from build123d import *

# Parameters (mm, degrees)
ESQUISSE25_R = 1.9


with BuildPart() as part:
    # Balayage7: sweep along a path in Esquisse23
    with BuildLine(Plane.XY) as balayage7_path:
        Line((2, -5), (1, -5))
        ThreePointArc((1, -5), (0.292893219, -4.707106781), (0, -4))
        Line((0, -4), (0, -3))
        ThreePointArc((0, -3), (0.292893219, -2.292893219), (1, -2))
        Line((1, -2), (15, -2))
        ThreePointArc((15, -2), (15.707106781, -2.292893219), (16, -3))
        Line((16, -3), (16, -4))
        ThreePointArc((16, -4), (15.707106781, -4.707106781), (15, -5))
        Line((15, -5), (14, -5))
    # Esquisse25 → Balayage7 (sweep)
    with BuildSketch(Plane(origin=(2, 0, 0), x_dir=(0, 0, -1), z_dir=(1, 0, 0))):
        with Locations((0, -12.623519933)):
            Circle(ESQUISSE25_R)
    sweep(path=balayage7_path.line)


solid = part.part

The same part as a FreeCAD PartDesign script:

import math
import FreeCAD as App
import Part
import Sketcher

V = App.Vector

doc = App.newDocument("Part")
params = doc.addObject("Spreadsheet::Sheet", "Params")
for row, (alias, value) in enumerate([
    ("sketch1_diameter", "3.8 mm"),
    ("sketch2_radius", "1 mm"),
    ("sketch2_width", "1 mm"),
    ("sketch2_width2", "14 mm"),
], start=1):
    params.set(f"A{row}", alias)
    params.set(f"B{row}", "=" + value)
    params.setAlias(f"B{row}", alias)

body = doc.addObject("PartDesign::Body", "Body")

# Sketch on YZ plane
sketch1 = doc.addObject("Sketcher::SketchObject", "Sketch")
body.addObject(sketch1)
sketch1.AttachmentSupport = (doc.YZ_Plane, [""])
sketch1.MapMode = "FlatFace"
sketch1.AttachmentOffset = App.Placement(V(0, 0, 2), App.Rotation())
sketch1.addGeometry(Part.Circle(V(-12.62352, 0, 0), V(0, 0, 1), 1.9), False)
sketch1.addConstraint([
    Sketcher.Constraint("PointOnObject", 0, 3, -1),
    Sketcher.Constraint("Diameter", 0, 3.8),
    Sketcher.Constraint("DistanceX", 0, 3, -1, 1, 12.62352),
])
sketch1.setExpression("Constraints[1]", "Params.sketch1_diameter")

# Sketch on XY plane
sketch2 = doc.addObject("Sketcher::SketchObject", "Sketch001")
body.addObject(sketch2)
sketch2.AttachmentSupport = (doc.XY_Plane, [""])
sketch2.MapMode = "FlatFace"
sketch2.addGeometry([
    Part.LineSegment(V(2, -5, 0), V(1, -5, 0)),  # 0
    Part.ArcOfCircle(Part.Circle(V(1, -4, 0), V(0, 0, 1), 1), math.radians(-180), math.radians(-90)),  # 1
    Part.LineSegment(V(0, -4, 0), V(0, -3, 0)),  # 2
    Part.ArcOfCircle(Part.Circle(V(1, -3, 0), V(0, 0, 1), 1), math.radians(90), math.radians(180)),  # 3
    Part.LineSegment(V(1, -2, 0), V(15, -2, 0)),  # 4
    Part.ArcOfCircle(Part.Circle(V(15, -3, 0), V(0, 0, 1), 1), math.radians(0), math.radians(90)),  # 5
    Part.LineSegment(V(16, -3, 0), V(16, -4, 0)),  # 6
    Part.ArcOfCircle(Part.Circle(V(15, -4, 0), V(0, 0, 1), 1), math.radians(-90), math.radians(0)),  # 7
    Part.LineSegment(V(15, -5, 0), V(14, -5, 0)),  # 8
], False)
sketch2.addConstraint([
    Sketcher.Constraint("Tangent", 0, 2, 1, 2),
    Sketcher.Constraint("Tangent", 1, 1, 2, 1),
    Sketcher.Constraint("Tangent", 2, 2, 3, 2),
    Sketcher.Constraint("Tangent", 3, 1, 4, 1),
    Sketcher.Constraint("Tangent", 4, 2, 5, 2),
    Sketcher.Constraint("Tangent", 5, 1, 6, 1),
    Sketcher.Constraint("Tangent", 6, 2, 7, 2),
    Sketcher.Constraint("Tangent", 7, 1, 8, 1),
    Sketcher.Constraint("Horizontal", 0),
    Sketcher.Constraint("Vertical", 2),
    Sketcher.Constraint("Horizontal", 4),
    Sketcher.Constraint("Vertical", 6),
    Sketcher.Constraint("Horizontal", 8),
    Sketcher.Constraint("Equal", 1, 3),
    Sketcher.Constraint("Equal", 3, 5),
    Sketcher.Constraint("Equal", 5, 7),
    Sketcher.Constraint("PointOnObject", 1, 1, -2),
    Sketcher.Constraint("Horizontal", 1, 3, 7, 3),
    Sketcher.Constraint("Equal", 0, 8),
    Sketcher.Constraint("Equal", 8, 2),
    Sketcher.Constraint("Radius", 1, 1.0),
    Sketcher.Constraint("DistanceX", 0, 2, 0, 1, 1.0),
    Sketcher.Constraint("DistanceX", 4, 1, 4, 2, 14.0),
    Sketcher.Constraint("DistanceY", 1, 3, -1, 1, 4.0),
])
sketch2.setExpression("Constraints[20]", "Params.sketch2_radius")
sketch2.setExpression("Constraints[21]", "Params.sketch2_width")
sketch2.setExpression("Constraints[22]", "Params.sketch2_width2")
doc.recompute()

additivepipe = doc.addObject("PartDesign::AdditivePipe", "AdditivePipe")
body.addObject(additivepipe)
additivepipe.Profile = sketch1
additivepipe.Spine = (sketch2, ["Edge1", "Edge2", "Edge3", "Edge4", "Edge5", "Edge6", "Edge7", "Edge8", "Edge9"])

doc.recompute()
